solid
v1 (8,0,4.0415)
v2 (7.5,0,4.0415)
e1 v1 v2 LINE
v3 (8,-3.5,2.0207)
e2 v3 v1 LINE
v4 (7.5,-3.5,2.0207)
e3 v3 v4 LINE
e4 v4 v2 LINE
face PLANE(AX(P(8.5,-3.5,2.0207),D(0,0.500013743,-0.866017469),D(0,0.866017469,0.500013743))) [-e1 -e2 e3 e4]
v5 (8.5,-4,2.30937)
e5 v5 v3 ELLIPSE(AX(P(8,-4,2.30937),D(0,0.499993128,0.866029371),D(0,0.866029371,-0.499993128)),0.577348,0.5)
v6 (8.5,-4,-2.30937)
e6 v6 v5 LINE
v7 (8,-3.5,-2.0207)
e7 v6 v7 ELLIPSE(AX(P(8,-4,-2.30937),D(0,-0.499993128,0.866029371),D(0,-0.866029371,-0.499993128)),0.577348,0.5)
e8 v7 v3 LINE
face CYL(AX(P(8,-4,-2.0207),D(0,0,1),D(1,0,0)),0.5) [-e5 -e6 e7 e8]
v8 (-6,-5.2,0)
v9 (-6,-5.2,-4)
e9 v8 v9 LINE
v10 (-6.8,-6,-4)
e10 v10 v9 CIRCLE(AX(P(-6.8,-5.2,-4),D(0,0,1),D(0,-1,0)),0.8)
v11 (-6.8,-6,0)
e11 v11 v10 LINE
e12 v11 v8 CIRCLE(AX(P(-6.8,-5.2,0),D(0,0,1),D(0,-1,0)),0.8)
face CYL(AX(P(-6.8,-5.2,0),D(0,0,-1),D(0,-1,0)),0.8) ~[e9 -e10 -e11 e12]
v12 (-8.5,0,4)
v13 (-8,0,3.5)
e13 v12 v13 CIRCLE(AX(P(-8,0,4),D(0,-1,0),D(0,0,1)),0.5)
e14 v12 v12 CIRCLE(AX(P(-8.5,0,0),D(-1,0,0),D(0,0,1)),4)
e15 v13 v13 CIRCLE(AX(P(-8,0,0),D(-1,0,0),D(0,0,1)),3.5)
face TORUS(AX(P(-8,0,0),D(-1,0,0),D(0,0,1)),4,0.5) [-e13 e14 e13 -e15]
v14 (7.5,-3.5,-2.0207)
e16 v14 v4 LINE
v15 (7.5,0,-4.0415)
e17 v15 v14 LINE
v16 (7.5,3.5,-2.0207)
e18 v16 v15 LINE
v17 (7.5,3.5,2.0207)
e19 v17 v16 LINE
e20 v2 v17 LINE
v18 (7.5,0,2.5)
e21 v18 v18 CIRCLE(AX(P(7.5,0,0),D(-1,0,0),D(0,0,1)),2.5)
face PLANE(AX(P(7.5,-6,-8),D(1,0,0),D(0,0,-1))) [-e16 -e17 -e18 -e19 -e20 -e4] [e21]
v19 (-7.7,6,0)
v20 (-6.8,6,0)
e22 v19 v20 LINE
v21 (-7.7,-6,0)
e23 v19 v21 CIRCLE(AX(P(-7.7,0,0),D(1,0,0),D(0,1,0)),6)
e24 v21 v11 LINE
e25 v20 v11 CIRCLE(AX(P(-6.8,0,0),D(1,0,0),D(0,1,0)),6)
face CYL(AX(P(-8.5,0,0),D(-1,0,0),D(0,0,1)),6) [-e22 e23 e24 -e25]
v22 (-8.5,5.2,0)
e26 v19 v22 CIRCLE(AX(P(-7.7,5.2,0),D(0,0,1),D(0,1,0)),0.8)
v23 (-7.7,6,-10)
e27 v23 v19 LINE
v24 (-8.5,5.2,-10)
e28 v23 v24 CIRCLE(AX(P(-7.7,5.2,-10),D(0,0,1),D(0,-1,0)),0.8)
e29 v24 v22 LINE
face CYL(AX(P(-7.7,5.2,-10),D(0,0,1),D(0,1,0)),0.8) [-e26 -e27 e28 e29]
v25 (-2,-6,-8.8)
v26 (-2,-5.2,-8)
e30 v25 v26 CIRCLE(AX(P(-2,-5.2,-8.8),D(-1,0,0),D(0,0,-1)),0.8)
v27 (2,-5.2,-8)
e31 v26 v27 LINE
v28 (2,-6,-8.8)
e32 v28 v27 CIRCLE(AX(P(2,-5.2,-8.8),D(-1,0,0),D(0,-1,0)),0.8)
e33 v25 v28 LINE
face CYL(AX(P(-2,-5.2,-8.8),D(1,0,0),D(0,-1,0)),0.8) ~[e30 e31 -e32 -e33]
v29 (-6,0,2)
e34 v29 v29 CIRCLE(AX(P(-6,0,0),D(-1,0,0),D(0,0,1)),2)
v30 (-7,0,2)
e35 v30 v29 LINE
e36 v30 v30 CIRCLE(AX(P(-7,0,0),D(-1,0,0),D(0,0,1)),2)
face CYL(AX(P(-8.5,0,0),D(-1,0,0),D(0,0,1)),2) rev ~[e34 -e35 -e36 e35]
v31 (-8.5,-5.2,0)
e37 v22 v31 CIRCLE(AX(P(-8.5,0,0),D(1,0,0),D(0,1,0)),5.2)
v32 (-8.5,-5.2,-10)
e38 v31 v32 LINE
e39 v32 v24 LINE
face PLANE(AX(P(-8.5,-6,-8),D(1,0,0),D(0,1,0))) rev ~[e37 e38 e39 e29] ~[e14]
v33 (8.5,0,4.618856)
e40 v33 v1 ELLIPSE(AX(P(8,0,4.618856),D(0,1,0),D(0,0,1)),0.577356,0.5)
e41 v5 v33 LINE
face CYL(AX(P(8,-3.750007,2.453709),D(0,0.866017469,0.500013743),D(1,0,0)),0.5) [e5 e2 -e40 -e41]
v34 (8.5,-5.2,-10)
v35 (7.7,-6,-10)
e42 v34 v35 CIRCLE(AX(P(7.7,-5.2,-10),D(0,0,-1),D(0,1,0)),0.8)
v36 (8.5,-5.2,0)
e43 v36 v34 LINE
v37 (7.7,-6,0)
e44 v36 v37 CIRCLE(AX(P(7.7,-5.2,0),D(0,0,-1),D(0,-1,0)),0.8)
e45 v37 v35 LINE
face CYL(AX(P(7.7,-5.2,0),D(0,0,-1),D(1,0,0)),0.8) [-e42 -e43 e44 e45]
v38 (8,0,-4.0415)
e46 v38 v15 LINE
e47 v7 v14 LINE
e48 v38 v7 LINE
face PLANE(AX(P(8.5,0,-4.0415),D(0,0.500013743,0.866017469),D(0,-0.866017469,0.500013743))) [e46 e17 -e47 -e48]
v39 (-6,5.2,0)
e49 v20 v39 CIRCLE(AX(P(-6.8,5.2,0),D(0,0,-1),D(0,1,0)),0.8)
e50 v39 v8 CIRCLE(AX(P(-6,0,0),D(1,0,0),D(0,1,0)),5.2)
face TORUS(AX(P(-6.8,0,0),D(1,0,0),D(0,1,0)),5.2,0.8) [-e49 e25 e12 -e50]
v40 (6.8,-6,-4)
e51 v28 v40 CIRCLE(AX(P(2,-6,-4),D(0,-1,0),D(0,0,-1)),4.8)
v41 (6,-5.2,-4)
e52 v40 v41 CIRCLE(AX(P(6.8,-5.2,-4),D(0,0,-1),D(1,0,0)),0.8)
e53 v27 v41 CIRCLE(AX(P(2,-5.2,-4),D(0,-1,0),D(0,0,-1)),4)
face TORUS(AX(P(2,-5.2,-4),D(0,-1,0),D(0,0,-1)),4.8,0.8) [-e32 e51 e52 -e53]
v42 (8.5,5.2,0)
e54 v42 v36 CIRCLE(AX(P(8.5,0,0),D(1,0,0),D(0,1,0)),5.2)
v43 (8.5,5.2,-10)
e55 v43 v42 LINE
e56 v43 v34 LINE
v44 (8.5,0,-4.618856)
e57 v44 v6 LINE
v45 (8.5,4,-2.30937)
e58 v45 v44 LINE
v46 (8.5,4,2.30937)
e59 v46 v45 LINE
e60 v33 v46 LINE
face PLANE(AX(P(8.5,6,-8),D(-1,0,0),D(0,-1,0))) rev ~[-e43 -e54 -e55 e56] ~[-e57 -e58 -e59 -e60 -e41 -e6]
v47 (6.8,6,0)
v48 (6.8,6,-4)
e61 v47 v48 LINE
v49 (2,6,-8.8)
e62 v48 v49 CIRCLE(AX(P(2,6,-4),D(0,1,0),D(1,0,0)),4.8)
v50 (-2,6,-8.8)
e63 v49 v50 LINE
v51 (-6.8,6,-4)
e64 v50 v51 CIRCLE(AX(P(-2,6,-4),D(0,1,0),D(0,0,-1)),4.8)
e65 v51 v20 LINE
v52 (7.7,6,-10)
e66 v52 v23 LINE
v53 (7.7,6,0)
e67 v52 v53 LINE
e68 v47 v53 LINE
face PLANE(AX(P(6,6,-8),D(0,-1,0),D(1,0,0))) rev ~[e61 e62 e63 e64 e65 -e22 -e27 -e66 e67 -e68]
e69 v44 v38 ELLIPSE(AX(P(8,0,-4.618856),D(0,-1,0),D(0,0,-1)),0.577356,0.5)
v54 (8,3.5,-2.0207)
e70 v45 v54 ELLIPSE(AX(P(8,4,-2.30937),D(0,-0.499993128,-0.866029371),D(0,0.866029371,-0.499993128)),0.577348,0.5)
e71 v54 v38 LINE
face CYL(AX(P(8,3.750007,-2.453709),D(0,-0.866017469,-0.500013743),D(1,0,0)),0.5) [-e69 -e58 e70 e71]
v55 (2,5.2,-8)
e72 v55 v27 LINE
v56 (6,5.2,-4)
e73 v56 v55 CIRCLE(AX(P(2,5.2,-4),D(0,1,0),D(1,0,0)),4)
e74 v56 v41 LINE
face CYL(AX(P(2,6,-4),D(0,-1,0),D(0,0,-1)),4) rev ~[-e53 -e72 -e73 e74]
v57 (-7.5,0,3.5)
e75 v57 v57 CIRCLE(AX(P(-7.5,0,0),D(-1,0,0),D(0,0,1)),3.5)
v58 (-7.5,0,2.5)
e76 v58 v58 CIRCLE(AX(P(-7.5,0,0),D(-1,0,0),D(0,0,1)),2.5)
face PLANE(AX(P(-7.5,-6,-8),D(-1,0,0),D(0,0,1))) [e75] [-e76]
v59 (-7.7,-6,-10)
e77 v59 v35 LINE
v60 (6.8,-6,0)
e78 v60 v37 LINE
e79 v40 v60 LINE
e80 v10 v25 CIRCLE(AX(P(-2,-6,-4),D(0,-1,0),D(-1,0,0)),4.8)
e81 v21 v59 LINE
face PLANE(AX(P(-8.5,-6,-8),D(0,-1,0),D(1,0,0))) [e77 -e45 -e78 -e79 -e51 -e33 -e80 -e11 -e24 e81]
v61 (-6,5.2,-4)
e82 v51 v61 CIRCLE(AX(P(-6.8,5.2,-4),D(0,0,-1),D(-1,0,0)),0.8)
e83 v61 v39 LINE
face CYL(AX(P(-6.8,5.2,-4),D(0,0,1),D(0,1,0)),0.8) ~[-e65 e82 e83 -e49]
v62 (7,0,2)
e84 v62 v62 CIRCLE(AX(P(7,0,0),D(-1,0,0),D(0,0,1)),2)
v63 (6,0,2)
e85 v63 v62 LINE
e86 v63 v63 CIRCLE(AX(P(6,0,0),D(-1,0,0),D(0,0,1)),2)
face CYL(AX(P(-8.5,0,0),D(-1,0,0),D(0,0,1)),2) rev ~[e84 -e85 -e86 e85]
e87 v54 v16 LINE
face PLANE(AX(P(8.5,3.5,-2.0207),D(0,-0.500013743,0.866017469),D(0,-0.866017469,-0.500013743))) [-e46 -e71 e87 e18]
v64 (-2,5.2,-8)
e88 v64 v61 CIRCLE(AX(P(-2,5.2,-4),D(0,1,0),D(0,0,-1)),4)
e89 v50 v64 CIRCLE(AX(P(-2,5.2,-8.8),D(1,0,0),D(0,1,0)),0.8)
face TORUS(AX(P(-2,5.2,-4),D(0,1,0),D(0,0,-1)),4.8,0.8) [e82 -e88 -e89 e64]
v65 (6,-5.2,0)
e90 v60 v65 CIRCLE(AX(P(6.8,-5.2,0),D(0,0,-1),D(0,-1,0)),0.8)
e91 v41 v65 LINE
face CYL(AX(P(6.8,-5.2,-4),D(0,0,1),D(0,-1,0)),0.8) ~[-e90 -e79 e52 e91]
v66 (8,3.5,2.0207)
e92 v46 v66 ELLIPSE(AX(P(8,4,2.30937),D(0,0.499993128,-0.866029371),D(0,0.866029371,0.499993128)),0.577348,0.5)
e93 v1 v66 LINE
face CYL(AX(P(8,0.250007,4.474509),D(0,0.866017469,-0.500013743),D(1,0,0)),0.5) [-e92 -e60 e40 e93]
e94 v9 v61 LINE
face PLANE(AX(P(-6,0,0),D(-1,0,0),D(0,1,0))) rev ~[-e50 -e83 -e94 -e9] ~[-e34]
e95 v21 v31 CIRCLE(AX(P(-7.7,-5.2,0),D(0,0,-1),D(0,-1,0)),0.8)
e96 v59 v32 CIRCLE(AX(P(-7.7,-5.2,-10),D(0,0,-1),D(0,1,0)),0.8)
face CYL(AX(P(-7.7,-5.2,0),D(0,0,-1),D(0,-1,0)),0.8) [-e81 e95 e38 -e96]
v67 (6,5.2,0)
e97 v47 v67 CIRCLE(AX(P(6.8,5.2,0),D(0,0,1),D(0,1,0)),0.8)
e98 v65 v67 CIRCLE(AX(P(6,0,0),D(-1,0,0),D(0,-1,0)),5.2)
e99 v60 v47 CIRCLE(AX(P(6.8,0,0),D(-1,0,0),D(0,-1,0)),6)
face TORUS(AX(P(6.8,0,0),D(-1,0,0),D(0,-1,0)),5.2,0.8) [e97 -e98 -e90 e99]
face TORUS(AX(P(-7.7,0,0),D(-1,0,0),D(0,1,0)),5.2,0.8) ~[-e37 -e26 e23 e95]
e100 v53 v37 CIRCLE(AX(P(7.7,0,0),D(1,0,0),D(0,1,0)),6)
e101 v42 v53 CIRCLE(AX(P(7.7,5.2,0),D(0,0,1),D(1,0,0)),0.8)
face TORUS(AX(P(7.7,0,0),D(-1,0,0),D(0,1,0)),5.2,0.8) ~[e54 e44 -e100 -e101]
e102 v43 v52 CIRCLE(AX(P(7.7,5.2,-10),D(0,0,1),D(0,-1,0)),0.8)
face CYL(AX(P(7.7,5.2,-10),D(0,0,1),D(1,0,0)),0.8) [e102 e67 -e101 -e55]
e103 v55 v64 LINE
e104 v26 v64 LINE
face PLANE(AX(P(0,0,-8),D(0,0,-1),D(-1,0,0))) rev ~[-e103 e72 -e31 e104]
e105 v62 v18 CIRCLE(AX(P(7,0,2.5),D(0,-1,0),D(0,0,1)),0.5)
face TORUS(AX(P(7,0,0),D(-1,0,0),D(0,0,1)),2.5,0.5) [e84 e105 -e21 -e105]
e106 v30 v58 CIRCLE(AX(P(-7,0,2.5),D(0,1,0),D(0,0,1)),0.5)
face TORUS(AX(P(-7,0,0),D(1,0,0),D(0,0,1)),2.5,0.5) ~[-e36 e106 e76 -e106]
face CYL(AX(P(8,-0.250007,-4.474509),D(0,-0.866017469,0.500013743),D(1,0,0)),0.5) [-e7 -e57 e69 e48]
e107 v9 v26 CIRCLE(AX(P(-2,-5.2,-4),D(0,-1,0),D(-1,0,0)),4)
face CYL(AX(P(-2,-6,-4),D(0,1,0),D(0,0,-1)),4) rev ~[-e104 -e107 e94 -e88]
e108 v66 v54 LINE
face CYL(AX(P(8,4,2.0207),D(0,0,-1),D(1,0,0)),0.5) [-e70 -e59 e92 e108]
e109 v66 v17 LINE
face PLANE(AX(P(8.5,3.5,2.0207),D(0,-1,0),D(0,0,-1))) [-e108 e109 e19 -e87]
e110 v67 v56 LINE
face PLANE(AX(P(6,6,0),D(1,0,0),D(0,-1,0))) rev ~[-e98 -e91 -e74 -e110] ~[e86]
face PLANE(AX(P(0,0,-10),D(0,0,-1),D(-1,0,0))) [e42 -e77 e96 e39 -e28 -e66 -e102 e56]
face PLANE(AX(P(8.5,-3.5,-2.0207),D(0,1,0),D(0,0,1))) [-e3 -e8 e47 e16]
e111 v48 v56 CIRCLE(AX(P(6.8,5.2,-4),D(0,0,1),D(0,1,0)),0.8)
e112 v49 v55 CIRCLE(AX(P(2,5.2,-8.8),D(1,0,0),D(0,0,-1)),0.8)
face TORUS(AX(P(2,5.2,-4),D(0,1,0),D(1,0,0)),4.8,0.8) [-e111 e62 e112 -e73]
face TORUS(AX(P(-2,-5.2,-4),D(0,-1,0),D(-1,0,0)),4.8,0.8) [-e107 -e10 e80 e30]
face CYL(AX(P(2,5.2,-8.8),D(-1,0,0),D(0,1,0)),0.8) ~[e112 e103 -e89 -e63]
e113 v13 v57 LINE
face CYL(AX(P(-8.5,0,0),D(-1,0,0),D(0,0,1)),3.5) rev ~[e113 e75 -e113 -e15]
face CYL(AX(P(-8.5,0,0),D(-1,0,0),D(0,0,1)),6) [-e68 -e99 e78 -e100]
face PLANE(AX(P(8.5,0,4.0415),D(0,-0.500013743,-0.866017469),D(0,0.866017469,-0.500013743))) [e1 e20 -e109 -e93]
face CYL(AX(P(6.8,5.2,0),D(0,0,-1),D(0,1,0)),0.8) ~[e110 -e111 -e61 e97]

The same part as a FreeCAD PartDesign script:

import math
import FreeCAD as App
import Part
import Sketcher
from FreeCAD import Vector
Q = App.Units.Quantity


def edges_at(feature, points):
    """Names of the edges that pass closest to the given points."""
    edges = feature.Shape.Edges
    near = lambda p: min(range(len(edges)), key=lambda i: edges[i].distToShape(Part.Vertex(*p))[0])
    return sorted({f"Edge{near(p) + 1}" for p in points})

doc = App.newDocument("Part")
body = doc.addObject("PartDesign::Body", "Body")
body.AllowCompound = True

# Sketch on XY plane
sketch1 = body.newObject("Sketcher::SketchObject", "Sketch")
sketch1.AttachmentSupport = (doc.getObject("XY_Plane"), [""])
sketch1.MapMode = "FlatFace"
sketch1.addGeometry(Part.LineSegment(Vector(-6, 6, 0), Vector(-8.5, 6, 0)), False)
sketch1.addGeometry(Part.LineSegment(Vector(-8.5, 6, 0), Vector(-8.5, -6, 0)), False)
sketch1.addGeometry(Part.LineSegment(Vector(-8.5, -6, 0), Vector(-6, -6, 0)), False)
sketch1.addGeometry(Part.LineSegment(Vector(-6, -6, 0), Vector(-6, 6, 0)), False)
sketch1.addGeometry(Part.LineSegment(Vector(6, 6, 0), Vector(6, -6, 0)), False)
sketch1.addGeometry(Part.LineSegment(Vector(6, -6, 0), Vector(8.5, -6, 0)), False)
sketch1.addGeometry(Part.LineSegment(Vector(8.5, -6, 0), Vector(8.5, 6, 0)), False)
sketch1.addGeometry(Part.LineSegment(Vector(8.5, 6, 0), Vector(6, 6, 0)), False)
sketch1.addConstraint(Sketcher.Constraint("Coincident", 0, 2, 1, 1))
sketch1.addConstraint(Sketcher.Constraint("Coincident", 1, 2, 2, 1))
sketch1.addConstraint(Sketcher.Constraint("Coincident", 2, 2, 3, 1))
sketch1.addConstraint(Sketcher.Constraint("Coincident", 3, 2, 0, 1))
sketch1.addConstraint(Sketcher.Constraint("Coincident", 4, 2, 5, 1))
sketch1.addConstraint(Sketcher.Constraint("Coincident", 5, 2, 6, 1))
sketch1.addConstraint(Sketcher.Constraint("Coincident", 6, 2, 7, 1))
sketch1.addConstraint(Sketcher.Constraint("Coincident", 7, 2, 4, 1))
sketch1.addConstraint(Sketcher.Constraint("Horizontal", 0))
sketch1.addConstraint(Sketcher.Constraint("Vertical", 1))
sketch1.addConstraint(Sketcher.Constraint("Horizontal", 2))
sketch1.addConstraint(Sketcher.Constraint("Vertical", 3))
sketch1.addConstraint(Sketcher.Constraint("Vertical", 4))
sketch1.addConstraint(Sketcher.Constraint("Horizontal", 5))
sketch1.addConstraint(Sketcher.Constraint("Vertical", 6))
sketch1.addConstraint(Sketcher.Constraint("Horizontal", 7))
sketch1.addConstraint(Sketcher.Constraint("Symmetric", 3, 2, 4, 2, -1, 1))
sketch1.addConstraint(Sketcher.Constraint("Symmetric", 1, 2, 6, 2, -1, 1))
sketch1.addConstraint(Sketcher.Constraint("Horizontal", 2, 2, 4, 2))
sketch1.addConstraint(Sketcher.Constraint("DistanceY", 1, 2, 1, 1, Q("12 mm")))
sketch1.addConstraint(Sketcher.Constraint("DistanceX", 0, 2, 0, 1, Q("2.5 mm")))
sketch1.addConstraint(Sketcher.Constraint("DistanceX", 2, 2, 4, 2, Q("12 mm")))
pad1 = body.newObject("PartDesign::Pad", "Pad")
pad1.Profile = sketch1
pad1.Type = "TwoLengths"
pad1.Length = 6
pad1.Length2 = 8

# Sketch on YZ plane
sketch2 = body.newObject("Sketcher::SketchObject", "Sketch001")
sketch2.AttachmentSupport = (doc.getObject("YZ_Plane"), [""])
sketch2.MapMode = "FlatFace"
sketch2.AttachmentOffset = App.Placement(Vector(0, 0, -8.5), App.Rotation())
sketch2.addGeometry(Part.LineSegment(Vector(-6, 6, 0), Vector(0, 6, 0)), False)
sketch2.addGeometry(Part.ArcOfCircle(Part.Circle(Vector(0, 0, 0), Vector(0, 0, 1), 6), math.radians(90), math.radians(180)), False)
sketch2.addGeometry(Part.LineSegment(Vector(-6, 0, 0), Vector(-6, 6, 0)), False)
sketch2.addGeometry(Part.ArcOfCircle(Part.Circle(Vector(0, 0, 0), Vector(0, 0, 1), 6), math.radians(0), math.radians(90)), False)
sketch2.addGeometry(Part.LineSegment(Vector(0, 6, 0), Vector(6, 6, 0)), False)
sketch2.addGeometry(Part.LineSegment(Vector(6, 6, 0), Vector(6, 0, 0)), False)
sketch2.addConstraint(Sketcher.Constraint("Tangent", 0, 2, 1, 1))
sketch2.addConstraint(Sketcher.Constraint("Tangent", 1, 2, 2, 1))
sketch2.addConstraint(Sketcher.Constraint("Coincident", 2, 2, 0, 1))
sketch2.addConstraint(Sketcher.Constraint("Tangent", 3, 2, 4, 1))
sketch2.addConstraint(Sketcher.Constraint("Coincident", 4, 2, 5, 1))
sketch2.addConstraint(Sketcher.Constraint("Tangent", 5, 2, 3, 1))
sketch2.addConstraint(Sketcher.Constraint("Horizontal", 0))
sketch2.addConstraint(Sketcher.Constraint("Vertical", 2))
sketch2.addConstraint(Sketcher.Constraint("Horizontal", 4))
sketch2.addConstraint(Sketcher.Constraint("Vertical", 5))
sketch2.addConstraint(Sketcher.Constraint("Coincident", 1, 3, -1, 1))
sketch2.addConstraint(Sketcher.Constraint("Coincident", 3, 3, -1, 1))
sketch2.addConstraint(Sketcher.Constraint("Equal", 1, 3))
sketch2.addConstraint(Sketcher.Constraint("Radius", 1, Q("6 mm")))
pocket1 = body.newObject("PartDesign::Pocket", "Pocket")
pocket1.Profile = sketch2
pocket1.Type = "ThroughAll"
pocket1.Reversed = True

# Sketch on YZ plane
sketch3 = body.newObject("Sketcher::SketchObject", "Sketch002")
sketch3.AttachmentSupport = (doc.getObject("YZ_Plane"), [""])
sketch3.MapMode = "FlatFace"
sketch3.AttachmentOffset = App.Placement(Vector(0, 0, -8.5), App.Rotation())
sketch3.addGeometry(Part.Circle(Vector(0, 0, 0), Vector(0, 0, 1), 2), False)
sketch3.addConstraint(Sketcher.Constraint("Coincident", 0, 3, -1, 1))
sketch3.addConstraint(Sketcher.Constraint("Diameter", 0, Q("4 mm")))
pocket2 = body.newObject("PartDesign::Pocket", "Pocket001")
pocket2.Profile = sketch3
pocket2.Type = "ThroughAll"
pocket2.Reversed = True

# Sketch on YZ plane
sketch4 = body.newObject("Sketcher::SketchObject", "Sketch003")
sketch4.AttachmentSupport = (doc.getObject("YZ_Plane"), [""])
sketch4.MapMode = "FlatFace"
sketch4.AttachmentOffset = App.Placement(Vector(0, 0, -8.5), App.Rotation())
sketch4.addGeometry(Part.Circle(Vector(0, 0, 0), Vector(0, 0, 1), 3.5), False)
sketch4.addConstraint(Sketcher.Constraint("Coincident", 0, 3, -1, 1))
sketch4.addConstraint(Sketcher.Constraint("Diameter", 0, Q("7 mm")))
pocket3 = body.newObject("PartDesign::Pocket", "Pocket002")
pocket3.Profile = sketch4
pocket3.Length = 1
pocket3.Reversed = True

# Sketch on YZ plane
sketch5 = body.newObject("Sketcher::SketchObject", "Sketch004")
sketch5.AttachmentSupport = (doc.getObject("YZ_Plane"), [""])
sketch5.MapMode = "FlatFace"
sketch5.AttachmentOffset = App.Placement(Vector(0, 0, 8.5), App.Rotation())
sketch5.addGeometry(Part.LineSegment(Vector(-3.5, -2.0207, 0), Vector(0, -4.0415, 0)), False)
sketch5.addGeometry(Part.LineSegment(Vector(0, -4.0415, 0), Vector(3.5, -2.0207, 0)), False)
sketch5.addGeometry(Part.LineSegment(Vector(3.5, -2.0207, 0), Vector(3.5, 2.0207, 0)), False)
sketch5.addGeometry(Part.LineSegment(Vector(3.5, 2.0207, 0), Vector(0, 4.0415, 0)), False)
sketch5.addGeometry(Part.LineSegment(Vector(0, 4.0415, 0), Vector(-3.5, 2.0207, 0)), False)
sketch5.addGeometry(Part.LineSegment(Vector(-3.5, 2.0207, 0), Vector(-3.5, -2.0207, 0)), False)
sketch5.addConstraint(Sketcher.Constraint("Coincident", 0, 2, 1, 1))
sketch5.addConstraint(Sketcher.Constraint("Coincident", 1, 2, 2, 1))
sketch5.addConstraint(Sketcher.Constraint("Coincident", 2, 2, 3, 1))
sketch5.addConstraint(Sketcher.Constraint("Coincident", 3, 2, 4, 1))
sketch5.addConstraint(Sketcher.Constraint("Coincident", 4, 2, 5, 1))
sketch5.addConstraint(Sketcher.Constraint("Coincident", 5, 2, 0, 1))
sketch5.addConstraint(Sketcher.Constraint("Vertical", 2))
sketch5.addConstraint(Sketcher.Constraint("Vertical", 5))
sketch5.addConstraint(Sketcher.Constraint("Symmetric", 0, 2, 3, 2, -1, 1))
sketch5.addConstraint(Sketcher.Constraint("Symmetric", 1, 2, 4, 2, -1, 1))
sketch5.addConstraint(Sketcher.Constraint("PointOnObject", 0, 2, -2))
sketch5.addConstraint(Sketcher.Constraint("Parallel", 0, 3))
sketch5.addConstraint(Sketcher.Constraint("Horizontal", 2, 2, 4, 2))
sketch5.addConstraint(Sketcher.Constraint("DistanceX", 4, 2, 2, 2, Q("7 mm")))
sketch5.addConstraint(Sketcher.Constraint("Angle", 0, Q("-30.001 deg")))
sketch5.addConstraint(Sketcher.Constraint("DistanceY", 2, 1, 2, 2, Q("4.0414 mm")))
pocket4 = body.newObject("PartDesign::Pocket", "Pocket003")
pocket4.Profile = sketch5
pocket4.Length = 1

# Sketch on XY plane
sketch6 = body.newObject("Sketcher::SketchObject", "Sketch005")
sketch6.AttachmentSupport = (doc.getObject("XY_Plane"), [""])
sketch6.MapMode = "FlatFace"
sketch6.AttachmentOffset = App.Placement(Vector(0, 0, -8), App.Rotation())
sketch6.addGeometry(Part.LineSegment(Vector(-8.5, 6, 0), Vector(8.5, 6, 0)), False)
sketch6.addGeometry(Part.LineSegment(Vector(8.5, 6, 0), Vector(8.5, -6, 0)), False)
sketch6.addGeometry(Part.LineSegment(Vector(8.5, -6, 0), Vector(-8.5, -6, 0)), False)
sketch6.addGeometry(Part.LineSegment(Vector(-8.5, -6, 0), Vector(-8.5, 6, 0)), False)
sketch6.addConstraint(Sketcher.Constraint("Coincident", 0, 2, 1, 1))
sketch6.addConstraint(Sketcher.Constraint("Coincident", 1, 2, 2, 1))
sketch6.addConstraint(Sketcher.Constraint("Coincident", 2, 2, 3, 1))
sketch6.addConstraint(Sketcher.Constraint("Coincident", 3, 2, 0, 1))
sketch6.addConstraint(Sketcher.Constraint("Horizontal", 0))
sketch6.addConstraint(Sketcher.Constraint("Vertical", 1))
sketch6.addConstraint(Sketcher.Constraint("Horizontal", 2))
sketch6.addConstraint(Sketcher.Constraint("Vertical", 3))
sketch6.addConstraint(Sketcher.Constraint("Symmetric", 0, 2, 2, 2, -1, 1))
sketch6.addConstraint(Sketcher.Constraint("DistanceX", 0, 1, 0, 2, Q("17 mm")))
sketch6.addConstraint(Sketcher.Constraint("DistanceY", 1, 2, 1, 1, Q("12 mm")))
pad2 = body.newObject("PartDesign::Pad", "Pad001")
pad2.Profile = sketch6
pad2.Length = 2
pad2.Reversed = True
doc.recompute()

fillet = body.newObject("PartDesign::Fillet", "Fillet")
fillet.Base = (pad2, edges_at(pad2, [(-6, 0, -8), (6, 0, -8)]))
fillet.Radius = 4
doc.recompute()

fillet2 = body.newObject("PartDesign::Fillet", "Fillet001")
fillet2.Base = (fillet, edges_at(fillet, [
    (6, 6, -2),
    (6, 0, 6),
    (6, -6, -2),
    (0, -6, -8),
    (-6, -6, -2),
    (-6, 0, 6),
    (-6, 6, -2),
    (-8.5, 6, -5),
    (-8.5, -6, -5),
    (-8.5, 0, 6),
    (8.5, -6, -5),
    (8.5, 6, -5),
    (8.5, 0, 6),
]))
fillet2.Radius = 0.8
doc.recompute()

fillet3 = body.newObject("PartDesign::Fillet", "Fillet002")
fillet3.Base = (fillet2, edges_at(fillet2, [(7.5, 0, -2)]))
fillet3.Radius = 0.5
doc.recompute()

fillet4 = body.newObject("PartDesign::Fillet", "Fillet003")
fillet4.Base = (fillet3, edges_at(fillet3, [(-7.5, 0, -2)]))
fillet4.Radius = 0.5
doc.recompute()

fillet5 = body.newObject("PartDesign::Fillet", "Fillet004")
fillet5.Base = (fillet4, edges_at(fillet4, [
    (8.5, -1.75, 3.031),
    (8.5, 1.75, 3.031),
    (8.5, 3.5, 0),
    (8.5, 1.75, -3.031),
    (8.5, -1.75, -3.031),
    (8.5, -3.5, 0),
]))
fillet5.Radius = 0.5
doc.recompute()

fillet6 = body.newObject("PartDesign::Fillet", "Fillet005")
fillet6.Base = (fillet5, edges_at(fillet5, [(-8.5, 0, -3.5)]))
fillet6.Radius = 0.5

doc.recompute()
